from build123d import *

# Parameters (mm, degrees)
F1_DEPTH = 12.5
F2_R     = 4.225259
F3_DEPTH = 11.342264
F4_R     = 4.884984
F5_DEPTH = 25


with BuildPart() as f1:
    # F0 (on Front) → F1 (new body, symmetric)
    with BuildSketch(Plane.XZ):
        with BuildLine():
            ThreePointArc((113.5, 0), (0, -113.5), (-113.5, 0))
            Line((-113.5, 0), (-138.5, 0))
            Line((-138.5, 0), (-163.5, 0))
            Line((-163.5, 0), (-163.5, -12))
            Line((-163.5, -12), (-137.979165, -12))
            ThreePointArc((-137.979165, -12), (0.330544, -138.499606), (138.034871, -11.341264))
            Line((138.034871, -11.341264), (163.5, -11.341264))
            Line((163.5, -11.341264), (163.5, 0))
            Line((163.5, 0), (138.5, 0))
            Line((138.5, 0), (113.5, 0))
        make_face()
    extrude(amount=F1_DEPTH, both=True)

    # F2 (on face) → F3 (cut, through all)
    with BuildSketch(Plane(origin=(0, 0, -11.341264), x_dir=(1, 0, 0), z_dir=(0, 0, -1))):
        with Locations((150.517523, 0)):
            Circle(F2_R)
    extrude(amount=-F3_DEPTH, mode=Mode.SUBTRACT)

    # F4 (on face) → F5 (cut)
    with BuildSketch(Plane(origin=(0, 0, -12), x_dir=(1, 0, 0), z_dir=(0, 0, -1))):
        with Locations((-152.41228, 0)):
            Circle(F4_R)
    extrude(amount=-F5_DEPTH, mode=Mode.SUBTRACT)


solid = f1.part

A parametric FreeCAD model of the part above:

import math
import FreeCAD as App
import Part
import Sketcher
Q = App.Units.Quantity

doc = App.newDocument("Part")
body = doc.addObject("PartDesign::Body", "Body")

sketch1 = body.newObject("Sketcher::SketchObject", "Sketch")
sketch1.AttachmentSupport = (doc.getObject("XZ_Plane"), [""])
sketch1.MapMode = "FlatFace"
sketch1.addGeometry([
    Part.ArcOfCircle(Part.Circle(App.Vector(0, 0, 0), App.Vector(0, 0, 1), 114), math.radians(180), math.radians(360)),
    Part.LineSegment(App.Vector(-114, 0, 0), App.Vector(-164, 0, 0)),
    Part.LineSegment(App.Vector(-164, 0, 0), App.Vector(-164, -12, 0)),
    Part.LineSegment(App.Vector(-164, -12, 0), App.Vector(-138, -12, 0)),
    Part.ArcOfCircle(Part.Circle(App.Vector(0, 0, 0), App.Vector(0, 0, 1), 138), math.radians(-175), math.radians(-5)),
    Part.LineSegment(App.Vector(138, -11, 0), App.Vector(164, -11, 0)),
    Part.LineSegment(App.Vector(164, -11, 0), App.Vector(164, 0, 0)),
    Part.LineSegment(App.Vector(164, 0, 0), App.Vector(114, 0, 0)),
], False)
sketch1.addConstraint([
    Sketcher.Constraint("Coincident", 0, 1, 1, 1),
    Sketcher.Constraint("Coincident", 1, 2, 2, 1),
    Sketcher.Constraint("Coincident", 2, 2, 3, 1),
    Sketcher.Constraint("Coincident", 3, 2, 4, 1),
    Sketcher.Constraint("Coincident", 4, 2, 5, 1),
    Sketcher.Constraint("Coincident", 5, 2, 6, 1),
    Sketcher.Constraint("Coincident", 6, 2, 7, 1),
    Sketcher.Constraint("Coincident", 7, 2, 0, 2),
    Sketcher.Constraint("Horizontal", 1),
    Sketcher.Constraint("Vertical", 2),
    Sketcher.Constraint("Horizontal", 3),
    Sketcher.Constraint("Horizontal", 5),
    Sketcher.Constraint("Vertical", 6),
    Sketcher.Constraint("Horizontal", 7),
    Sketcher.Constraint("Coincident", 0, 3, -1, 1),
    Sketcher.Constraint("Coincident", 4, 3, -1, 1),
    Sketcher.Constraint("Symmetric", 1, 2, 6, 2, -1, 1),
    Sketcher.Constraint("PointOnObject", 0, 1, -1),
    Sketcher.Constraint("Radius", 0, Q("113.5 mm")),
    Sketcher.Constraint("Radius", 4, Q("138.5 mm")),
    Sketcher.Constraint("DistanceX", 1, 2, 1, 1, Q("50 mm")),
    Sketcher.Constraint("DistanceY", 2, 2, 2, 1, Q("12 mm")),
    Sketcher.Constraint("DistanceX", 5, 1, 5, 2, Q("25.465129 mm")),
])
pad1 = body.newObject("PartDesign::Pad", "Pad")
pad1.Profile = sketch1
pad1.Length = 25
pad1.Midplane = True

sketch2 = body.newObject("Sketcher::SketchObject", "Sketch001")
sketch2.AttachmentSupport = (doc.getObject("XY_Plane"), [""])
sketch2.MapMode = "FlatFace"
sketch2.AttachmentOffset = App.Placement(App.Vector(0, 0, -11.341264), App.Rotation())
sketch2.addGeometry(Part.Circle(App.Vector(150.5, 0, 0), App.Vector(0, 0, 1), 4.2), False)
sketch2.addConstraint([
    Sketcher.Constraint("PointOnObject", 0, 3, -1),
    Sketcher.Constraint("Diameter", 0, Q("8.450518 mm")),
    Sketcher.Constraint("DistanceX", -1, 1, 0, 3, Q("150.517523 mm")),
])
pocket1 = body.newObject("PartDesign::Pocket", "Pocket")
pocket1.Profile = sketch2
pocket1.Type = "ThroughAll"
pocket1.Reversed = True

sketch3 = body.newObject("Sketcher::SketchObject", "Sketch002")
sketch3.AttachmentSupport = (doc.getObject("XY_Plane"), [""])
sketch3.MapMode = "FlatFace"
sketch3.AttachmentOffset = App.Placement(App.Vector(0, 0, -12), App.Rotation())
sketch3.addGeometry(Part.Circle(App.Vector(-152.4, 0, 0), App.Vector(0, 0, 1), 4.9), False)
sketch3.addConstraint([
    Sketcher.Constraint("PointOnObject", 0, 3, -1),
    Sketcher.Constraint("Diameter", 0, Q("9.769968 mm")),
    Sketcher.Constraint("DistanceX", 0, 3, -1, 1, Q("152.41228 mm")),
])
pocket2 = body.newObject("PartDesign::Pocket", "Pocket001")
pocket2.Profile = sketch3
pocket2.Length = 25
pocket2.Reversed = True

doc.recompute()
